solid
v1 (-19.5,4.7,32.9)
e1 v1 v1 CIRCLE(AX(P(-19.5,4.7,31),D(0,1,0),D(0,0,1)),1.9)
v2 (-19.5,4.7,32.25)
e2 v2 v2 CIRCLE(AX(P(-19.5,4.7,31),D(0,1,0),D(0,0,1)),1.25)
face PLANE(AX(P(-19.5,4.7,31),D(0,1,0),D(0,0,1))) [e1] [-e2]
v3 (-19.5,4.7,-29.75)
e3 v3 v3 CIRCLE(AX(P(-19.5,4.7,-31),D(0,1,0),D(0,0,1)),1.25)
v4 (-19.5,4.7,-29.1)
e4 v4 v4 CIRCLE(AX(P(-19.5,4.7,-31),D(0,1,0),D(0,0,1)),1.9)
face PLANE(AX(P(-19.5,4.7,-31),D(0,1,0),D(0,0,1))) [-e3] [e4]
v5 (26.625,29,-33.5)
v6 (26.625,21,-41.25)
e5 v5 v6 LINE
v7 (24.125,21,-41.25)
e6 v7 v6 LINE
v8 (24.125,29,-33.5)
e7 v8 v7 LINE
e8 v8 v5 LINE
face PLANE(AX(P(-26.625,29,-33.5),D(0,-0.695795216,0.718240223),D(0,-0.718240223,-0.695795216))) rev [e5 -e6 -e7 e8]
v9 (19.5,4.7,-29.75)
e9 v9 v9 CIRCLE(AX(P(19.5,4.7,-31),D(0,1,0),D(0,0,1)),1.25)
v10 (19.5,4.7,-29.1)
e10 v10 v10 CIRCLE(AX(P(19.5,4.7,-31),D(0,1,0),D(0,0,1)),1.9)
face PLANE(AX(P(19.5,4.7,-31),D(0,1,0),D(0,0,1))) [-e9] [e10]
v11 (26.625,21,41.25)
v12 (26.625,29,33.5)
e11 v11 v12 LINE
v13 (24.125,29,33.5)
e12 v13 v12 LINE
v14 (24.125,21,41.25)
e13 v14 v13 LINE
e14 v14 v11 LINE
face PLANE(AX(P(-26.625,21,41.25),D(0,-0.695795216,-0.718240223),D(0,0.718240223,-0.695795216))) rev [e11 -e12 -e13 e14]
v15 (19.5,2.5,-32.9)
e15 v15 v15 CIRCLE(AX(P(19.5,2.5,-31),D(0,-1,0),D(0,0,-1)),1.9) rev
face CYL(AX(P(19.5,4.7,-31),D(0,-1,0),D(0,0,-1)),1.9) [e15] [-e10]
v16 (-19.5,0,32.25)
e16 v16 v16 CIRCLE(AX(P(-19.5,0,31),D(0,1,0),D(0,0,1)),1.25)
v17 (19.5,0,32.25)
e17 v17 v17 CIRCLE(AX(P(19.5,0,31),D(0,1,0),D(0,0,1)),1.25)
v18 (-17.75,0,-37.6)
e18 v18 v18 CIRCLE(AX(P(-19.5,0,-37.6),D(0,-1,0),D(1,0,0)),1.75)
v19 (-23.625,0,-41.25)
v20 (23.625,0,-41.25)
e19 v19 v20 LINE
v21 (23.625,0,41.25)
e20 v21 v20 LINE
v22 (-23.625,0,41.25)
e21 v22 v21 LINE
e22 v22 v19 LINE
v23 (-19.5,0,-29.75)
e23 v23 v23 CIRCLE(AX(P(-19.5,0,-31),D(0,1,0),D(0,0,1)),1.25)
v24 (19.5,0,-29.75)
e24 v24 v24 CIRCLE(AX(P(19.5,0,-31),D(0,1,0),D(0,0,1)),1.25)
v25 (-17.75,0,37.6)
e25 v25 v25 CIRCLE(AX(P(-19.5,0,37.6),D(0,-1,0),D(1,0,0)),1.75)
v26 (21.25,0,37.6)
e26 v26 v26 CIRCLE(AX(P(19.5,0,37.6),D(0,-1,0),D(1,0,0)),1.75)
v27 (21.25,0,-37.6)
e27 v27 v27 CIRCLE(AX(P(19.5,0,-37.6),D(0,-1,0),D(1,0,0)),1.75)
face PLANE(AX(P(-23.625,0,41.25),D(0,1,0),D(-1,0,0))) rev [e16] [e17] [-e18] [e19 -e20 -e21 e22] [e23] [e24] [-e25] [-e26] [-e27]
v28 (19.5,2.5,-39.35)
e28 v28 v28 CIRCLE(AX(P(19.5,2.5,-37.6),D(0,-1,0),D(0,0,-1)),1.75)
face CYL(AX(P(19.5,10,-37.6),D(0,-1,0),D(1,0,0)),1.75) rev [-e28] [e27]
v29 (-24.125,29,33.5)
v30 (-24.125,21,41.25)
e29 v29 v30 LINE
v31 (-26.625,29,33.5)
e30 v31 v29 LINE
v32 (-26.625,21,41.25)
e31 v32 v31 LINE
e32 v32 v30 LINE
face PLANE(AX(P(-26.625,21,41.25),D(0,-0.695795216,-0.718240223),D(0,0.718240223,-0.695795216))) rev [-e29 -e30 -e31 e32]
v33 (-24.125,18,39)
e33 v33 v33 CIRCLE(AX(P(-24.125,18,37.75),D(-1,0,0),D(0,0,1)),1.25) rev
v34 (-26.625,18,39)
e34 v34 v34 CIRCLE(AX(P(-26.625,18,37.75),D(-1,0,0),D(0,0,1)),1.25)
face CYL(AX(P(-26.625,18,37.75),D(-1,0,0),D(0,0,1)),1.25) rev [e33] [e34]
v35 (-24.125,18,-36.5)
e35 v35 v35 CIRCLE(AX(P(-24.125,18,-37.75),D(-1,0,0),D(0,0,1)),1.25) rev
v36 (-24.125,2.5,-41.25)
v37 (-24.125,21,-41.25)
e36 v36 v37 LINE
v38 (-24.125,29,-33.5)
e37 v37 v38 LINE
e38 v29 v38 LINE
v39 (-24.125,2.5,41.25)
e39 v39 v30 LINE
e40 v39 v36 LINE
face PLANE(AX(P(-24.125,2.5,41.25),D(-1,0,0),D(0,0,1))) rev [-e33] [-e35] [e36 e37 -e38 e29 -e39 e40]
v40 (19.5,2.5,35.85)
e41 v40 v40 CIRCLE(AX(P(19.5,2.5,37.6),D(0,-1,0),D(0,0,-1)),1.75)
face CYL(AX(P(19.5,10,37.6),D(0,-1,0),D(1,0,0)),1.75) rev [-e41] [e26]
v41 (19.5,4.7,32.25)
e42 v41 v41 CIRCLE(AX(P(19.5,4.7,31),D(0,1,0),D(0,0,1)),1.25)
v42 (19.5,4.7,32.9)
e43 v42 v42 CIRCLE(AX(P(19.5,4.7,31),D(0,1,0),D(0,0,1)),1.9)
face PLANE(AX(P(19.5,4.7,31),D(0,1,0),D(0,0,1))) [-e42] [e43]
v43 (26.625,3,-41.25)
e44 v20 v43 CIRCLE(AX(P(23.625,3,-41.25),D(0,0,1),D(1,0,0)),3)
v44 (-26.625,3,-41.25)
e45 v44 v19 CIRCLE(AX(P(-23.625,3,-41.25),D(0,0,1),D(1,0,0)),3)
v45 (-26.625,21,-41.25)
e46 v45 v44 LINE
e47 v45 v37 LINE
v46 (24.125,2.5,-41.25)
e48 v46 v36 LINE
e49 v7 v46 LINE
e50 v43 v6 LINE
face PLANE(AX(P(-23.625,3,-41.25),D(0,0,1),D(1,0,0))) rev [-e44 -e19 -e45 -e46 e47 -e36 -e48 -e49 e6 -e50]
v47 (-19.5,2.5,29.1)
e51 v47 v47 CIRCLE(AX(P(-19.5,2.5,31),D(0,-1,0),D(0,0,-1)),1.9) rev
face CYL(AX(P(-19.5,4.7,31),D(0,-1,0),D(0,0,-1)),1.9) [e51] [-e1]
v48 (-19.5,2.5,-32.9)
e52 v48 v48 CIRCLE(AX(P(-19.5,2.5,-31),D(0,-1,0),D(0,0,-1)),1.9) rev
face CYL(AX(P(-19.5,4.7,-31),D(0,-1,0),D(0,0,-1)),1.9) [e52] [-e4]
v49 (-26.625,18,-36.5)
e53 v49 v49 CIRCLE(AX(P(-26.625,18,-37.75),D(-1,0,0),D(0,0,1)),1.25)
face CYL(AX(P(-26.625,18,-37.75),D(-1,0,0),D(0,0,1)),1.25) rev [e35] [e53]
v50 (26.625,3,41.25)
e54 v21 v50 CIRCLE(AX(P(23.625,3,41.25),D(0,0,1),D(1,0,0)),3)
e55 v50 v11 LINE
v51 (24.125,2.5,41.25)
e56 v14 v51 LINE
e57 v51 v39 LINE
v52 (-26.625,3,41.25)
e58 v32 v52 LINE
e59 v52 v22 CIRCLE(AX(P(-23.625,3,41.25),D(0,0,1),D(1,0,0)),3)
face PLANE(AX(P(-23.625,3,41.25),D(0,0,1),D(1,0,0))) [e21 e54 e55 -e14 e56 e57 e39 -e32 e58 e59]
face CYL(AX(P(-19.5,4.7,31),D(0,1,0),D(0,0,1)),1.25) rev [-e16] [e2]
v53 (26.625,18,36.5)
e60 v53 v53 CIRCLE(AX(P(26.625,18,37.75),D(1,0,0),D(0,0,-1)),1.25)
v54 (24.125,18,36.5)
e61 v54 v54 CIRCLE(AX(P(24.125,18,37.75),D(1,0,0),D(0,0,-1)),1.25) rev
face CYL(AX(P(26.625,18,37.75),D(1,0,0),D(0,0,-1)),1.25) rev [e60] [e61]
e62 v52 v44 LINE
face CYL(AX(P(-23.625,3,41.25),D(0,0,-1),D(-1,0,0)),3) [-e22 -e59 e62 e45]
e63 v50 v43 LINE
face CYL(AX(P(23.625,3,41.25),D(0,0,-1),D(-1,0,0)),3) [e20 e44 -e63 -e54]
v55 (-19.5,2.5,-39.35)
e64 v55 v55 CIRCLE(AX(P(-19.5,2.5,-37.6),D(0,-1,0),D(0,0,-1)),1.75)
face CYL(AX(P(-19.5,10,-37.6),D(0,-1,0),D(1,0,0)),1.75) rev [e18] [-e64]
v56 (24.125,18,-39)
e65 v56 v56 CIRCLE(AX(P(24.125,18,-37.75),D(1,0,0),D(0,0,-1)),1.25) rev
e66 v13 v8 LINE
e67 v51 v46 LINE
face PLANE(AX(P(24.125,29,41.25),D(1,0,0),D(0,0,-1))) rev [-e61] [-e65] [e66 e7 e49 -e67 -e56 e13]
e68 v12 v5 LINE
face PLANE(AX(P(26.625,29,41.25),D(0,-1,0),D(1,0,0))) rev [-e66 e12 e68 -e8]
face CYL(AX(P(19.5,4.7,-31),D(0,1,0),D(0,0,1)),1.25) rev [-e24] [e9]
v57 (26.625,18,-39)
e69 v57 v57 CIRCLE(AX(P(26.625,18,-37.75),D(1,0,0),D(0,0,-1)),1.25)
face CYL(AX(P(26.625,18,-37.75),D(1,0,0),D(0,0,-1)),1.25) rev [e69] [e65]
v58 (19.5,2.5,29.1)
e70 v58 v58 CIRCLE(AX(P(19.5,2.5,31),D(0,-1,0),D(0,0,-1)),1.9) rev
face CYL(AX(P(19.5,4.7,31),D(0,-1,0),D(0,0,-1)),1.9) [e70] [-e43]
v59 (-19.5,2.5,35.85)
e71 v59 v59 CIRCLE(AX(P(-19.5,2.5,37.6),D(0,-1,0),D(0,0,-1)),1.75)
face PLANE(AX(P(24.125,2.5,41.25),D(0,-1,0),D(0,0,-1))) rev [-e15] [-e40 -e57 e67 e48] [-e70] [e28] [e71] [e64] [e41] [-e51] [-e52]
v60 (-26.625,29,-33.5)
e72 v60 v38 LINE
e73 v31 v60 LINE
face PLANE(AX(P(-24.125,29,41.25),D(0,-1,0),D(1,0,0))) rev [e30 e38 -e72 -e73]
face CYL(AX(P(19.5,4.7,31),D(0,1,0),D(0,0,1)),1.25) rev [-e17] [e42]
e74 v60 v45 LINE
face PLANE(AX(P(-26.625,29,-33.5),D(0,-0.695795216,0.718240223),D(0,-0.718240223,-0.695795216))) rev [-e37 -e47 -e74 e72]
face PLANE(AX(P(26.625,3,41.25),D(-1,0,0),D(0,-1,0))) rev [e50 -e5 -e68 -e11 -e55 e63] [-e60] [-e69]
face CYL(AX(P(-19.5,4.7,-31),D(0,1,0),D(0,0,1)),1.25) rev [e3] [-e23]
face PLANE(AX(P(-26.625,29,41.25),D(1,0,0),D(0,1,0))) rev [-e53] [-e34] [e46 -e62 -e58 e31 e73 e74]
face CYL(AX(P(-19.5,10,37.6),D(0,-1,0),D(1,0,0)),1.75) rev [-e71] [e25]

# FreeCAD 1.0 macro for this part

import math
import FreeCAD as App
import Part
import Sketcher

V = App.Vector
Q = App.Units.Quantity

doc = App.newDocument("Part")
body = doc.addObject("PartDesign::Body", "Body")

sketch1 = doc.addObject("Sketcher::SketchObject", "Sketch")
body.addObject(sketch1)
sketch1.AttachmentSupport = (doc.XY_Plane, [""])
sketch1.MapMode = "FlatFace"
sketch1.addGeometry([
    Part.LineSegment(V(-26.6, 29, 0), V(-26.6, 3, 0)),
    Part.ArcOfCircle(Part.Circle(V(-23.6, 3, 0), V(0, 0, 1), 3), math.radians(180), math.radians(270)),
    Part.LineSegment(V(-23.6, 0, 0), V(23.6, 0, 0)),
    Part.ArcOfCircle(Part.Circle(V(23.6, 3, 0), V(0, 0, 1), 3), math.radians(-90), math.radians(0)),
    Part.LineSegment(V(26.6, 3, 0), V(26.6, 29, 0)),
    Part.LineSegment(V(26.6, 29, 0), V(24.1, 29, 0)),
    Part.LineSegment(V(24.1, 29, 0), V(24.1, 2.5, 0)),
    Part.LineSegment(V(24.1, 2.5, 0), V(-24.1, 2.5, 0)),
    Part.LineSegment(V(-24.1, 2.5, 0), V(-24.1, 29, 0)),
    Part.LineSegment(V(-24.1, 29, 0), V(-26.6, 29, 0)),
], False)
sketch1.addConstraint([
    Sketcher.Constraint("Tangent", 0, 2, 1, 1),
    Sketcher.Constraint("Tangent", 1, 2, 2, 1),
    Sketcher.Constraint("Tangent", 2, 2, 3, 1),
    Sketcher.Constraint("Tangent", 3, 2, 4, 1),
    Sketcher.Constraint("Coincident", 4, 2, 5, 1),
    Sketcher.Constraint("Coincident", 5, 2, 6, 1),
    Sketcher.Constraint("Coincident", 6, 2, 7, 1),
    Sketcher.Constraint("Coincident", 7, 2, 8, 1),
    Sketcher.Constraint("Coincident", 8, 2, 9, 1),
    Sketcher.Constraint("Coincident", 9, 2, 0, 1),
    Sketcher.Constraint("Vertical", 0),
    Sketcher.Constraint("Horizontal", 2),
    Sketcher.Constraint("Vertical", 4),
    Sketcher.Constraint("Horizontal", 5),
    Sketcher.Constraint("Vertical", 6),
    Sketcher.Constraint("Horizontal", 7),
    Sketcher.Constraint("Vertical", 8),
    Sketcher.Constraint("Horizontal", 9),
    Sketcher.Constraint("Equal", 1, 3),
    Sketcher.Constraint("Symmetric", 1, 2, 2, 2, -1, 1),
    Sketcher.Constraint("Symmetric", 5, 2, 8, 2, -2),
    Sketcher.Constraint("Radius", 1, Q("3 mm")),
    Sketcher.Constraint("DistanceY", 0, 2, 0, 1, Q("26 mm")),
    Sketcher.Constraint("DistanceX", 5, 2, 5, 1, Q("2.5 mm")),
    Sketcher.Constraint("DistanceY", 6, 2, 6, 1, Q("26.5 mm")),
    Sketcher.Constraint("DistanceX", 2, 1, 2, 2, Q("47.25 mm")),
])
pad1 = doc.addObject("PartDesign::Pad", "Pad")
body.addObject(pad1)
pad1.Profile = sketch1
pad1.Length = 82.5
pad1.Midplane = True

sketch2 = doc.addObject("Sketcher::SketchObject", "Sketch001")
body.addObject(sketch2)
sketch2.AttachmentSupport = (doc.YZ_Plane, [""])
sketch2.MapMode = "FlatFace"
sketch2.addGeometry([
    Part.LineSegment(V(21, -41, 0), V(29, -41, 0)),
    Part.LineSegment(V(29, -41, 0), V(29, -34, 0)),
    Part.LineSegment(V(29, -34, 0), V(21, -41, 0)),
    Part.LineSegment(V(29, 41, 0), V(21, 41, 0)),
    Part.LineSegment(V(21, 41, 0), V(29, 34, 0)),
    Part.LineSegment(V(29, 34, 0), V(29, 41, 0)),
], False)
sketch2.addConstraint([
    Sketcher.Constraint("Coincident", 0, 2, 1, 1),
    Sketcher.Constraint("Coincident", 1, 2, 2, 1),
    Sketcher.Constraint("Coincident", 2, 2, 0, 1),
    Sketcher.Constraint("Coincident", 3, 2, 4, 1),
    Sketcher.Constraint("Coincident", 4, 2, 5, 1),
    Sketcher.Constraint("Coincident", 5, 2, 3, 1),
    Sketcher.Constraint("Horizontal", 0),
    Sketcher.Constraint("Vertical", 1),
    Sketcher.Constraint("Horizontal", 3),
    Sketcher.Constraint("Vertical", 5),
    Sketcher.Constraint("Symmetric", 2, 2, 3, 2, -1),
    Sketcher.Constraint("Symmetric", 1, 2, 4, 2, -1),
    Sketcher.Constraint("DistanceX", 0, 1, 0, 2, Q("8 mm")),
    Sketcher.Constraint("DistanceX", -1, 1, 0, 2, Q("29 mm")),
    Sketcher.Constraint("DistanceY", 1, 2, 4, 2, Q("67 mm")),
    Sketcher.Constraint("DistanceY", 1, 1, 1, 2, Q("7.75 mm")),
])
pocket1 = doc.addObject("PartDesign::Pocket", "Pocket")
body.addObject(pocket1)
pocket1.Profile = sketch2
pocket1.Type = "ThroughAll"
pocket1.Midplane = True

sketch3 = doc.addObject("Sketcher::SketchObject", "Sketch002")
body.addObject(sketch3)
sketch3.AttachmentSupport = (doc.XZ_Plane, [""])
sketch3.MapMode = "FlatFace"
sketch3.addGeometry([
    Part.Circle(V(-19.5, -37.6, 0), V(0, 0, 1), 1.8),
    Part.Circle(V(-19.5, 37.6, 0), V(0, 0, 1), 1.8),
    Part.Circle(V(19.5, 37.6, 0), V(0, 0, 1), 1.8),
    Part.Circle(V(19.5, -37.6, 0), V(0, 0, 1), 1.8),
], False)
sketch3.addConstraint([
    Sketcher.Constraint("Equal", 0, 1),
    Sketcher.Constraint("Equal", 1, 2),
    Sketcher.Constraint("Equal", 2, 3),
    Sketcher.Constraint("Symmetric", 0, 3, 2, 3, -1, 1),
    Sketcher.Constraint("Symmetric", 1, 3, 3, 3, -1, 1),
    Sketcher.Constraint("Symmetric", 1, 3, 2, 3, -2),
    Sketcher.Constraint("Diameter", 0, Q("3.5 mm")),
    Sketcher.Constraint("DistanceX", 1, 3, 2, 3, Q("39 mm")),
    Sketcher.Constraint("DistanceY", 0, 3, -1, 1, Q("37.6 mm")),
])
pocket2 = doc.addObject("PartDesign::Pocket", "Pocket001")
body.addObject(pocket2)
pocket2.Profile = sketch3
pocket2.Length = 10

sketch4 = doc.addObject("Sketcher::SketchObject", "Sketch003")
body.addObject(sketch4)
sketch4.AttachmentSupport = (doc.YZ_Plane, [""])
sketch4.MapMode = "FlatFace"
sketch4.AttachmentOffset = App.Placement(V(0, 0, 26.625), App.Rotation())
sketch4.addGeometry(Part.Circle(V(18, -37.8, 0), V(0, 0, 1), 1.2), False)
sketch4.addConstraint([
    Sketcher.Constraint("Diameter", 0, Q("2.5 mm")),
    Sketcher.Constraint("DistanceX", -1, 1, 0, 3, Q("18 mm")),
    Sketcher.Constraint("DistanceY", 0, 3, -1, 1, Q("37.75 mm")),
])
pocket3 = doc.addObject("PartDesign::Pocket", "Pocket002")
body.addObject(pocket3)
pocket3.Profile = sketch4
pocket3.Type = "UpToFirst"

sketch5 = doc.addObject("Sketcher::SketchObject", "Sketch004")
body.addObject(sketch5)
sketch5.AttachmentSupport = (doc.YZ_Plane, [""])
sketch5.MapMode = "FlatFace"
sketch5.AttachmentOffset = App.Placement(V(0, 0, 26.625), App.Rotation())
sketch5.addGeometry(Part.Circle(V(18, 37.8, 0), V(0, 0, 1), 1.2), False)
sketch5.addConstraint([
    Sketcher.Constraint("Diameter", 0, Q("2.5 mm")),
    Sketcher.Constraint("DistanceX", -1, 1, 0, 3, Q("18 mm")),
    Sketcher.Constraint("DistanceY", -1, 1, 0, 3, Q("37.75 mm")),
])
pocket4 = doc.addObject("PartDesign::Pocket", "Pocket003")
body.addObject(pocket4)
pocket4.Profile = sketch5
pocket4.Type = "UpToFirst"

sketch6 = doc.addObject("Sketcher::SketchObject", "Sketch005")
body.addObject(sketch6)
sketch6.AttachmentSupport = (doc.YZ_Plane, [""])
sketch6.MapMode = "FlatFace"
sketch6.AttachmentOffset = App.Placement(V(0, 0, -26.625), App.Rotation())
sketch6.addGeometry([
    Part.Circle(V(18, -37.8, 0), V(0, 0, 1), 1.2),
    Part.Circle(V(18, 37.8, 0), V(0, 0, 1), 1.2),
], False)
sketch6.addConstraint([
    Sketcher.Constraint("Equal", 0, 1),
    Sketcher.Constraint("Symmetric", 0, 3, 1, 3, -1),
    Sketcher.Constraint("Diameter", 0, Q("2.5 mm")),
    Sketcher.Constraint("DistanceX", -1, 1, 0, 3, Q("18 mm")),
    Sketcher.Constraint("DistanceY", 0, 3, 1, 3, Q("75.5 mm")),
])
doc.recompute()
hole = doc.addObject("PartDesign::Hole", "Hole")
body.addObject(hole)
hole.Profile = sketch6
hole.ThreadType = "None"
hole.Diameter = 2.5
hole.DepthType = "ThroughAll"
hole.Reversed = True

sketch7 = doc.addObject("Sketcher::SketchObject", "Sketch006")
body.addObject(sketch7)
sketch7.AttachmentSupport = (doc.XZ_Plane, [""])
sketch7.MapMode = "FlatFace"
sketch7.AttachmentOffset = App.Placement(V(0, 0, -2.5), App.Rotation())
sketch7.addGeometry([
    Part.Circle(V(19.5, -31, 0), V(0, 0, 1), 1.9),
    Part.Circle(V(19.5, 31, 0), V(0, 0, 1), 1.9),
    Part.Circle(V(-19.5, 31, 0), V(0, 0, 1), 1.9),
    Part.Circle(V(-19.5, -31, 0), V(0, 0, 1), 1.9),
], False)
sketch7.addConstraint([
    Sketcher.Constraint("Equal", 0, 1),
    Sketcher.Constraint("Equal", 1, 2),
    Sketcher.Constraint("Equal", 2, 3),
    Sketcher.Constraint("Symmetric", 0, 3, 2, 3, -1, 1),
    Sketcher.Constraint("Symmetric", 1, 3, 3, 3, -1, 1),
    Sketcher.Constraint("Symmetric", 1, 3, 2, 3, -2),
    Sketcher.Constraint("Diameter", 0, Q("3.8 mm")),
    Sketcher.Constraint("DistanceY", 0, 3, -1, 1, Q("31 mm")),
    Sketcher.Constraint("DistanceX", 2, 3, 1, 3, Q("39 mm")),
])
pad2 = doc.addObject("PartDesign::Pad", "Pad001")
body.addObject(pad2)
pad2.Profile = sketch7
pad2.Length = 2.2
pad2.Reversed = True

sketch8 = doc.addObject("Sketcher::SketchObject", "Sketch007")
body.addObject(sketch8)
sketch8.AttachmentSupport = (doc.XZ_Plane, [""])
sketch8.MapMode = "FlatFace"
sketch8.AttachmentOffset = App.Placement(V(0, 0, -4.7), App.Rotation())
sketch8.addGeometry([
    Part.Circle(V(19.5, -31, 0), V(0, 0, 1), 1.2),
    Part.Circle(V(-19.5, -31, 0), V(0, 0, 1), 1.2),
    Part.Circle(V(19.5, 31, 0), V(0, 0, 1), 1.2),
    Part.Circle(V(-19.5, 31, 0), V(0, 0, 1), 1.2),
], False)
sketch8.addConstraint([
    Sketcher.Constraint("Equal", 0, 1),
    Sketcher.Constraint("Equal", 1, 2),
    Sketcher.Constraint("Equal", 2, 3),
    Sketcher.Constraint("Symmetric", 1, 3, 2, 3, -1, 1),
    Sketcher.Constraint("Symmetric", 0, 3, 3, 3, -1, 1),
    Sketcher.Constraint("Symmetric", 0, 3, 1, 3, -2),
    Sketcher.Constraint("Diameter", 0, Q("2.5 mm")),
    Sketcher.Constraint("DistanceY", 0, 3, -1, 1, Q("31 mm")),
    Sketcher.Constraint("DistanceX", 1, 3, 0, 3, Q("39 mm")),
])
doc.recompute()
hole2 = doc.addObject("PartDesign::Hole", "Hole001")
body.addObject(hole2)
hole2.Profile = sketch8
hole2.ThreadType = "None"
hole2.Diameter = 2.5
hole2.DepthType = "ThroughAll"
hole2.Reversed = True

doc.recompute()
